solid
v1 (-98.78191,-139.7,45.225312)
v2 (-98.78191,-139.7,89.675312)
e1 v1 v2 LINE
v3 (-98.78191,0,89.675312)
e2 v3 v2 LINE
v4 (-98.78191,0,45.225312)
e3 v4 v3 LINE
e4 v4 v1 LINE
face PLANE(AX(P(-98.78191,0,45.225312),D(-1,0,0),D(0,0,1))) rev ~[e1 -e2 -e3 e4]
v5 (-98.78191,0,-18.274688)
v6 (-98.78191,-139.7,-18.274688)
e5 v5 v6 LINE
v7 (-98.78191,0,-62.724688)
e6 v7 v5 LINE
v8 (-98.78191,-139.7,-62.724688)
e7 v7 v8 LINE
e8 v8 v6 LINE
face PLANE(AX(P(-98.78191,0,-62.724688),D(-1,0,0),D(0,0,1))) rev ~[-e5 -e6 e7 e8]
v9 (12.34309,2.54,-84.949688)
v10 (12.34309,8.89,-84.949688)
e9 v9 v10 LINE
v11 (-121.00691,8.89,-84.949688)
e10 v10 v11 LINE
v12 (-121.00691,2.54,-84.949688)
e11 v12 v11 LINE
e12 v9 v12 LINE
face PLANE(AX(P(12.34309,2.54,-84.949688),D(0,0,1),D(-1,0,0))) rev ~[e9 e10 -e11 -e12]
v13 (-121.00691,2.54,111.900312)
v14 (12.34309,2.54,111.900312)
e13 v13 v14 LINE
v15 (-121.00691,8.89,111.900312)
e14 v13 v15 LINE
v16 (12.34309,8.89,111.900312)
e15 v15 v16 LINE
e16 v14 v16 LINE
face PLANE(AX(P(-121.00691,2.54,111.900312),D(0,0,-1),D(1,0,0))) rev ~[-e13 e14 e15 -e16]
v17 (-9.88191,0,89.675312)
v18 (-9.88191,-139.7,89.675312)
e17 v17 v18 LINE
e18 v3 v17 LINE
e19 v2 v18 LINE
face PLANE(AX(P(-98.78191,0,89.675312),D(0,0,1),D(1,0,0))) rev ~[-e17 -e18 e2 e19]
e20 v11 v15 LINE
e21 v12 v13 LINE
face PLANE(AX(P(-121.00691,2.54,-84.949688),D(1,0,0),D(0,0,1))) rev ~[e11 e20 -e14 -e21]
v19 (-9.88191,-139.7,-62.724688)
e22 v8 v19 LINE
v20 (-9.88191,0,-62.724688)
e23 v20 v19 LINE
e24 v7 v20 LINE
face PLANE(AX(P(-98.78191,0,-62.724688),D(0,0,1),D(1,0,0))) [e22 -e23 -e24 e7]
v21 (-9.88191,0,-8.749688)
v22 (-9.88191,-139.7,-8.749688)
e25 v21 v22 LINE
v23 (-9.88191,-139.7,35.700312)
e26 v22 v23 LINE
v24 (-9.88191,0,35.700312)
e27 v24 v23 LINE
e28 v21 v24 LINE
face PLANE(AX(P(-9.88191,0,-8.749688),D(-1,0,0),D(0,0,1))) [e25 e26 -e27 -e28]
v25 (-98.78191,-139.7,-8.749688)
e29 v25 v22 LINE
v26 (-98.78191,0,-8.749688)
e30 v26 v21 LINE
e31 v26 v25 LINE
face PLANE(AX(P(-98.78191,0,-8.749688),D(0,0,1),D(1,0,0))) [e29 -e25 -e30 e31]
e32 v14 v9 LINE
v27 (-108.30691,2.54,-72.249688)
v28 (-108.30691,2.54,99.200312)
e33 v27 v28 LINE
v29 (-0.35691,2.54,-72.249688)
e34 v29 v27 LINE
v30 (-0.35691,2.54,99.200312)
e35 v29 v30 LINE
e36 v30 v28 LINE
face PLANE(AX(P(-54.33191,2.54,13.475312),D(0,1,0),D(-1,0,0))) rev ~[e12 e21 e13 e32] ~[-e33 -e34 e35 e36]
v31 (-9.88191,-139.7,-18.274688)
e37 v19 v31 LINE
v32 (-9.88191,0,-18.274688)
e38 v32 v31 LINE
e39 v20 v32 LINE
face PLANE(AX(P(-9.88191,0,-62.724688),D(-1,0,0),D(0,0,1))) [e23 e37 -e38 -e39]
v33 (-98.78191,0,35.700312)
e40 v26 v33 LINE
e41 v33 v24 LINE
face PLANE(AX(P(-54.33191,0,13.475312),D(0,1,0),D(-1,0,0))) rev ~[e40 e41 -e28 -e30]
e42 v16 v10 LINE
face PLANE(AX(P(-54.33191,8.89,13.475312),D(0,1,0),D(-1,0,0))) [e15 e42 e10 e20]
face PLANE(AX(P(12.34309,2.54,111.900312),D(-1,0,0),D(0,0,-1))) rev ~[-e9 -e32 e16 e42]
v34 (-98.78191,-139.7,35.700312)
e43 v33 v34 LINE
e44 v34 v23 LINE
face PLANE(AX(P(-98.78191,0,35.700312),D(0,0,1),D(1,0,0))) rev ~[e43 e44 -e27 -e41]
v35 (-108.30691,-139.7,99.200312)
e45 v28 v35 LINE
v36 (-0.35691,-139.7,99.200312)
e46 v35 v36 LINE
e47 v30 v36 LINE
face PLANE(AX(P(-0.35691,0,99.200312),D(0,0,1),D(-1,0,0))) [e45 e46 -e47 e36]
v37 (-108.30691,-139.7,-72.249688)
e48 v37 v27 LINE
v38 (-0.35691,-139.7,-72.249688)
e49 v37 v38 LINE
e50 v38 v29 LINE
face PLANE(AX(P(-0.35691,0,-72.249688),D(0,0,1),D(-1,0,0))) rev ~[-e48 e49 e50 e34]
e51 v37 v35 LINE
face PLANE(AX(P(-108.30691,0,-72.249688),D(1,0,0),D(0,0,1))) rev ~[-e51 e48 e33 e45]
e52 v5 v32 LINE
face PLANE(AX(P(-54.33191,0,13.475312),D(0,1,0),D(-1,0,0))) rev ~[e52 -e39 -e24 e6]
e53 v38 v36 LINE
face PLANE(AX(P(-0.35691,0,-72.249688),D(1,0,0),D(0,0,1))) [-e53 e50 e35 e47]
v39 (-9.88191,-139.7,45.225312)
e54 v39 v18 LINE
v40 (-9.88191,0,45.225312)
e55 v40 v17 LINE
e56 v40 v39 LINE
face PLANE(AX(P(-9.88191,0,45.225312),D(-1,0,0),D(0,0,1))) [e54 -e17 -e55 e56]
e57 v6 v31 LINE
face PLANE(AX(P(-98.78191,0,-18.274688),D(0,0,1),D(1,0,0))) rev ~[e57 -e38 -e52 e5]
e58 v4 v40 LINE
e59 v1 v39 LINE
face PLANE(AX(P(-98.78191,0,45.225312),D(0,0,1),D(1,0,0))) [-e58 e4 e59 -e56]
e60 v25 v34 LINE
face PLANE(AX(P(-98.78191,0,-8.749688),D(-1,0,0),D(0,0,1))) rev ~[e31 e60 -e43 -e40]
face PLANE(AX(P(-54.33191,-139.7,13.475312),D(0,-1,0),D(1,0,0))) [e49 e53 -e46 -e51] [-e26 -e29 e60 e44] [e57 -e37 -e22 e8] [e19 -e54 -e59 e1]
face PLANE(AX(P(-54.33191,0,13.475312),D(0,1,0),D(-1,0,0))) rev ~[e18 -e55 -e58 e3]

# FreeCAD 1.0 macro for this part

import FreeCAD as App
import Part
import Sketcher
from FreeCAD import Vector
Q = App.Units.Quantity

doc = App.newDocument("Part")
params = doc.addObject("Spreadsheet::Sheet", "Params")
for row, (alias, value) in enumerate([
    ("sketch1_width", "3.5 in"),
    ("sketch1_width2", "4.25 in"),
    ("sketch1_height", "6.75 in"),
    ("sketch1_height2", "1.75 in"),
    ("pad1_length", "5.5 in"),
    ("sketch2_width", "4.25 in"),
    ("sketch2_height", "6.75 in"),
    ("pad2_length", "0.1 in"),
    ("sketch3_width", "5.25 in"),
    ("sketch3_height", "7.75 in"),
    ("pad3_length", "0.25 in"),
], start=1):
    params.set(f"A{row}", alias)
    params.set(f"B{row}", "=" + value)
    params.setAlias(f"B{row}", alias)

body = doc.addObject("PartDesign::Body", "Body")

# Sketch on XZ plane
sketch1 = body.newObject("Sketcher::SketchObject", "Sketch")
sketch1.AttachmentSupport = (doc.getObject("XZ_Plane"), [""])
sketch1.MapMode = "FlatFace"
sketch1.addGeometry([
    Part.LineSegment(Vector(-108, 99, 0), Vector(-108, -72, 0)),  # 0
    Part.LineSegment(Vector(-108, -72, 0), Vector(0, -72, 0)),  # 1
    Part.LineSegment(Vector(0, -72, 0), Vector(0, 99, 0)),  # 2
    Part.LineSegment(Vector(0, 99, 0), Vector(-108, 99, 0)),  # 3
    Part.LineSegment(Vector(-10, -63, 0), Vector(-99, -63, 0)),  # 4
    Part.LineSegment(Vector(-99, -63, 0), Vector(-99, -18, 0)),  # 5
    Part.LineSegment(Vector(-99, -18, 0), Vector(-10, -18, 0)),  # 6
    Part.LineSegment(Vector(-10, -18, 0), Vector(-10, -63, 0)),  # 7
    Part.LineSegment(Vector(-10, -9, 0), Vector(-99, -9, 0)),  # 8
    Part.LineSegment(Vector(-99, -9, 0), Vector(-99, 36, 0)),  # 9
    Part.LineSegment(Vector(-99, 36, 0), Vector(-10, 36, 0)),  # 10
    Part.LineSegment(Vector(-10, 36, 0), Vector(-10, -9, 0)),  # 11
    Part.LineSegment(Vector(-10, 45, 0), Vector(-99, 45, 0)),  # 12
    Part.LineSegment(Vector(-99, 45, 0), Vector(-99, 90, 0)),  # 13
    Part.LineSegment(Vector(-99, 90, 0), Vector(-10, 90, 0)),  # 14
    Part.LineSegment(Vector(-10, 90, 0), Vector(-10, 45, 0)),  # 15
], False)
sketch1.addConstraint([
    Sketcher.Constraint("Coincident", 0, 2, 1, 1),
    Sketcher.Constraint("Coincident", 1, 2, 2, 1),
    Sketcher.Constraint("Coincident", 2, 2, 3, 1),
    Sketcher.Constraint("Coincident", 3, 2, 0, 1),
    Sketcher.Constraint("Coincident", 4, 2, 5, 1),
    Sketcher.Constraint("Coincident", 5, 2, 6, 1),
    Sketcher.Constraint("Coincident", 6, 2, 7, 1),
    Sketcher.Constraint("Coincident", 7, 2, 4, 1),
    Sketcher.Constraint("Coincident", 8, 2, 9, 1),
    Sketcher.Constraint("Coincident", 9, 2, 10, 1),
    Sketcher.Constraint("Coincident", 10, 2, 11, 1),
    Sketcher.Constraint("Coincident", 11, 2, 8, 1),
    Sketcher.Constraint("Coincident", 12, 2, 13, 1),
    Sketcher.Constraint("Coincident", 13, 2, 14, 1),
    Sketcher.Constraint("Coincident", 14, 2, 15, 1),
    Sketcher.Constraint("Coincident", 15, 2, 12, 1),
    Sketcher.Constraint("Vertical", 0),
    Sketcher.Constraint("Horizontal", 1),
    Sketcher.Constraint("Vertical", 2),
    Sketcher.Constraint("Horizontal", 3),
    Sketcher.Constraint("Horizontal", 4),
    Sketcher.Constraint("Vertical", 5),
    Sketcher.Constraint("Horizontal", 6),
    Sketcher.Constraint("Vertical", 7),
    Sketcher.Constraint("Horizontal", 8),
    Sketcher.Constraint("Vertical", 9),
    Sketcher.Constraint("Horizontal", 10),
    Sketcher.Constraint("Vertical", 11),
    Sketcher.Constraint("Horizontal", 12),
    Sketcher.Constraint("Vertical", 13),
    Sketcher.Constraint("Horizontal", 14),
    Sketcher.Constraint("Vertical", 15),
    Sketcher.Constraint("Vertical", 5, 2, 8, 2),
    Sketcher.Constraint("Vertical", 7, 2, 10, 2),
    Sketcher.Constraint("Vertical", 9, 2, 12, 2),
    Sketcher.Constraint("Vertical", 11, 2, 14, 2),
    Sketcher.Constraint("Equal", 7, 9),
    Sketcher.Constraint("Equal", 11, 13),
    Sketcher.Constraint("DistanceX", 4, 2, 4, 1, Q("3.5 in")),
    Sketcher.Constraint("DistanceX", 1, 1, 1, 2, Q("4.25 in")),
    Sketcher.Constraint("DistanceY", 0, 2, 0, 1, Q("6.75 in")),
    Sketcher.Constraint("DistanceY", 5, 1, 5, 2, Q("1.75 in")),
    Sketcher.Constraint("DistanceY", 0, 2, 8, 2, Q("2.5 in")),
    Sketcher.Constraint("DistanceY", 5, 2, 12, 2, Q("2.5 in")),
    Sketcher.Constraint("DistanceX", 0, 2, 4, 2, Q("0.375 in")),
    Sketcher.Constraint("DistanceY", 0, 2, 4, 2, Q("0.375 in")),
    Sketcher.Constraint("DistanceX", 0, 2, -1, 1, Q("108.30691 mm")),
    Sketcher.Constraint("DistanceY", 0, 2, -1, 1, Q("72.249688 mm")),
])
sketch1.setExpression("Constraints[38]", "Params.sketch1_width")
sketch1.setExpression("Constraints[39]", "Params.sketch1_width2")
sketch1.setExpression("Constraints[40]", "Params.sketch1_height")
sketch1.setExpression("Constraints[41]", "Params.sketch1_height2")
pad1 = body.newObject("PartDesign::Pad", "Pad")
pad1.Profile = sketch1
pad1.setExpression("Length", "Params.pad1_length")

# Sketch on XZ plane
sketch2 = body.newObject("Sketcher::SketchObject", "Sketch001")
sketch2.AttachmentSupport = (doc.getObject("XZ_Plane"), [""])
sketch2.MapMode = "FlatFace"
sketch2.addGeometry([
    Part.LineSegment(Vector(0, 99, 0), Vector(0, -72, 0)),
    Part.LineSegment(Vector(0, -72, 0), Vector(-108, -72, 0)),
    Part.LineSegment(Vector(-108, -72, 0), Vector(-108, 99, 0)),
    Part.LineSegment(Vector(-108, 99, 0), Vector(0, 99, 0)),
], False)
sketch2.addConstraint([
    Sketcher.Constraint("Coincident", 0, 2, 1, 1),
    Sketcher.Constraint("Coincident", 1, 2, 2, 1),
    Sketcher.Constraint("Coincident", 2, 2, 3, 1),
    Sketcher.Constraint("Coincident", 3, 2, 0, 1),
    Sketcher.Constraint("Vertical", 0),
    Sketcher.Constraint("Horizontal", 1),
    Sketcher.Constraint("Vertical", 2),
    Sketcher.Constraint("Horizontal", 3),
    Sketcher.Constraint("DistanceX", 1, 2, 1, 1, Q("4.25 in")),
    Sketcher.Constraint("DistanceY", 0, 2, 0, 1, Q("6.75 in")),
    Sketcher.Constraint("DistanceX", 0, 2, -1, 1, Q("0.35691 mm")),
    Sketcher.Constraint("DistanceY", 0, 2, -1, 1, Q("72.249688 mm")),
])
sketch2.setExpression("Constraints[8]", "Params.sketch2_width")
sketch2.setExpression("Constraints[9]", "Params.sketch2_height")
pad2 = body.newObject("PartDesign::Pad", "Pad001")
pad2.Profile = sketch2
pad2.setExpression("Length", "Params.pad2_length")
pad2.Reversed = True

# Sketch on XZ plane
sketch3 = body.newObject("Sketcher::SketchObject", "Sketch002")
sketch3.AttachmentSupport = (doc.getObject("XZ_Plane"), [""])
sketch3.MapMode = "FlatFace"
sketch3.AttachmentOffset = App.Placement(Vector(0, 0, -0.1 * 25.4), App.Rotation())
sketch3.addGeometry([
    Part.LineSegment(Vector(-121, 112, 0), Vector(12, 112, 0)),
    Part.LineSegment(Vector(12, 112, 0), Vector(12, -85, 0)),
    Part.LineSegment(Vector(12, -85, 0), Vector(-121, -85, 0)),
    Part.LineSegment(Vector(-121, -85, 0), Vector(-121, 112, 0)),
], False)
sketch3.addConstraint([
    Sketcher.Constraint("Coincident", 0, 2, 1, 1),
    Sketcher.Constraint("Coincident", 1, 2, 2, 1),
    Sketcher.Constraint("Coincident", 2, 2, 3, 1),
    Sketcher.Constraint("Coincident", 3, 2, 0, 1),
    Sketcher.Constraint("Horizontal", 0),
    Sketcher.Constraint("Vertical", 1),
    Sketcher.Constraint("Horizontal", 2),
    Sketcher.Constraint("Vertical", 3),
    Sketcher.Constraint("DistanceX", 0, 1, 0, 2, Q("5.25 in")),
    Sketcher.Constraint("DistanceY", 1, 2, 1, 1, Q("7.75 in")),
    Sketcher.Constraint("DistanceX", -1, 1, 0, 2, Q("12.34309 mm")),
    Sketcher.Constraint("DistanceY", -1, 1, 0, 2, Q("111.900312 mm")),
])
sketch3.setExpression("Constraints[8]", "Params.sketch3_width")
sketch3.setExpression("Constraints[9]", "Params.sketch3_height")
pad3 = body.newObject("PartDesign::Pad", "Pad002")
pad3.Profile = sketch3
pad3.setExpression("Length", "Params.pad3_length")
pad3.Reversed = True

doc.recompute()
